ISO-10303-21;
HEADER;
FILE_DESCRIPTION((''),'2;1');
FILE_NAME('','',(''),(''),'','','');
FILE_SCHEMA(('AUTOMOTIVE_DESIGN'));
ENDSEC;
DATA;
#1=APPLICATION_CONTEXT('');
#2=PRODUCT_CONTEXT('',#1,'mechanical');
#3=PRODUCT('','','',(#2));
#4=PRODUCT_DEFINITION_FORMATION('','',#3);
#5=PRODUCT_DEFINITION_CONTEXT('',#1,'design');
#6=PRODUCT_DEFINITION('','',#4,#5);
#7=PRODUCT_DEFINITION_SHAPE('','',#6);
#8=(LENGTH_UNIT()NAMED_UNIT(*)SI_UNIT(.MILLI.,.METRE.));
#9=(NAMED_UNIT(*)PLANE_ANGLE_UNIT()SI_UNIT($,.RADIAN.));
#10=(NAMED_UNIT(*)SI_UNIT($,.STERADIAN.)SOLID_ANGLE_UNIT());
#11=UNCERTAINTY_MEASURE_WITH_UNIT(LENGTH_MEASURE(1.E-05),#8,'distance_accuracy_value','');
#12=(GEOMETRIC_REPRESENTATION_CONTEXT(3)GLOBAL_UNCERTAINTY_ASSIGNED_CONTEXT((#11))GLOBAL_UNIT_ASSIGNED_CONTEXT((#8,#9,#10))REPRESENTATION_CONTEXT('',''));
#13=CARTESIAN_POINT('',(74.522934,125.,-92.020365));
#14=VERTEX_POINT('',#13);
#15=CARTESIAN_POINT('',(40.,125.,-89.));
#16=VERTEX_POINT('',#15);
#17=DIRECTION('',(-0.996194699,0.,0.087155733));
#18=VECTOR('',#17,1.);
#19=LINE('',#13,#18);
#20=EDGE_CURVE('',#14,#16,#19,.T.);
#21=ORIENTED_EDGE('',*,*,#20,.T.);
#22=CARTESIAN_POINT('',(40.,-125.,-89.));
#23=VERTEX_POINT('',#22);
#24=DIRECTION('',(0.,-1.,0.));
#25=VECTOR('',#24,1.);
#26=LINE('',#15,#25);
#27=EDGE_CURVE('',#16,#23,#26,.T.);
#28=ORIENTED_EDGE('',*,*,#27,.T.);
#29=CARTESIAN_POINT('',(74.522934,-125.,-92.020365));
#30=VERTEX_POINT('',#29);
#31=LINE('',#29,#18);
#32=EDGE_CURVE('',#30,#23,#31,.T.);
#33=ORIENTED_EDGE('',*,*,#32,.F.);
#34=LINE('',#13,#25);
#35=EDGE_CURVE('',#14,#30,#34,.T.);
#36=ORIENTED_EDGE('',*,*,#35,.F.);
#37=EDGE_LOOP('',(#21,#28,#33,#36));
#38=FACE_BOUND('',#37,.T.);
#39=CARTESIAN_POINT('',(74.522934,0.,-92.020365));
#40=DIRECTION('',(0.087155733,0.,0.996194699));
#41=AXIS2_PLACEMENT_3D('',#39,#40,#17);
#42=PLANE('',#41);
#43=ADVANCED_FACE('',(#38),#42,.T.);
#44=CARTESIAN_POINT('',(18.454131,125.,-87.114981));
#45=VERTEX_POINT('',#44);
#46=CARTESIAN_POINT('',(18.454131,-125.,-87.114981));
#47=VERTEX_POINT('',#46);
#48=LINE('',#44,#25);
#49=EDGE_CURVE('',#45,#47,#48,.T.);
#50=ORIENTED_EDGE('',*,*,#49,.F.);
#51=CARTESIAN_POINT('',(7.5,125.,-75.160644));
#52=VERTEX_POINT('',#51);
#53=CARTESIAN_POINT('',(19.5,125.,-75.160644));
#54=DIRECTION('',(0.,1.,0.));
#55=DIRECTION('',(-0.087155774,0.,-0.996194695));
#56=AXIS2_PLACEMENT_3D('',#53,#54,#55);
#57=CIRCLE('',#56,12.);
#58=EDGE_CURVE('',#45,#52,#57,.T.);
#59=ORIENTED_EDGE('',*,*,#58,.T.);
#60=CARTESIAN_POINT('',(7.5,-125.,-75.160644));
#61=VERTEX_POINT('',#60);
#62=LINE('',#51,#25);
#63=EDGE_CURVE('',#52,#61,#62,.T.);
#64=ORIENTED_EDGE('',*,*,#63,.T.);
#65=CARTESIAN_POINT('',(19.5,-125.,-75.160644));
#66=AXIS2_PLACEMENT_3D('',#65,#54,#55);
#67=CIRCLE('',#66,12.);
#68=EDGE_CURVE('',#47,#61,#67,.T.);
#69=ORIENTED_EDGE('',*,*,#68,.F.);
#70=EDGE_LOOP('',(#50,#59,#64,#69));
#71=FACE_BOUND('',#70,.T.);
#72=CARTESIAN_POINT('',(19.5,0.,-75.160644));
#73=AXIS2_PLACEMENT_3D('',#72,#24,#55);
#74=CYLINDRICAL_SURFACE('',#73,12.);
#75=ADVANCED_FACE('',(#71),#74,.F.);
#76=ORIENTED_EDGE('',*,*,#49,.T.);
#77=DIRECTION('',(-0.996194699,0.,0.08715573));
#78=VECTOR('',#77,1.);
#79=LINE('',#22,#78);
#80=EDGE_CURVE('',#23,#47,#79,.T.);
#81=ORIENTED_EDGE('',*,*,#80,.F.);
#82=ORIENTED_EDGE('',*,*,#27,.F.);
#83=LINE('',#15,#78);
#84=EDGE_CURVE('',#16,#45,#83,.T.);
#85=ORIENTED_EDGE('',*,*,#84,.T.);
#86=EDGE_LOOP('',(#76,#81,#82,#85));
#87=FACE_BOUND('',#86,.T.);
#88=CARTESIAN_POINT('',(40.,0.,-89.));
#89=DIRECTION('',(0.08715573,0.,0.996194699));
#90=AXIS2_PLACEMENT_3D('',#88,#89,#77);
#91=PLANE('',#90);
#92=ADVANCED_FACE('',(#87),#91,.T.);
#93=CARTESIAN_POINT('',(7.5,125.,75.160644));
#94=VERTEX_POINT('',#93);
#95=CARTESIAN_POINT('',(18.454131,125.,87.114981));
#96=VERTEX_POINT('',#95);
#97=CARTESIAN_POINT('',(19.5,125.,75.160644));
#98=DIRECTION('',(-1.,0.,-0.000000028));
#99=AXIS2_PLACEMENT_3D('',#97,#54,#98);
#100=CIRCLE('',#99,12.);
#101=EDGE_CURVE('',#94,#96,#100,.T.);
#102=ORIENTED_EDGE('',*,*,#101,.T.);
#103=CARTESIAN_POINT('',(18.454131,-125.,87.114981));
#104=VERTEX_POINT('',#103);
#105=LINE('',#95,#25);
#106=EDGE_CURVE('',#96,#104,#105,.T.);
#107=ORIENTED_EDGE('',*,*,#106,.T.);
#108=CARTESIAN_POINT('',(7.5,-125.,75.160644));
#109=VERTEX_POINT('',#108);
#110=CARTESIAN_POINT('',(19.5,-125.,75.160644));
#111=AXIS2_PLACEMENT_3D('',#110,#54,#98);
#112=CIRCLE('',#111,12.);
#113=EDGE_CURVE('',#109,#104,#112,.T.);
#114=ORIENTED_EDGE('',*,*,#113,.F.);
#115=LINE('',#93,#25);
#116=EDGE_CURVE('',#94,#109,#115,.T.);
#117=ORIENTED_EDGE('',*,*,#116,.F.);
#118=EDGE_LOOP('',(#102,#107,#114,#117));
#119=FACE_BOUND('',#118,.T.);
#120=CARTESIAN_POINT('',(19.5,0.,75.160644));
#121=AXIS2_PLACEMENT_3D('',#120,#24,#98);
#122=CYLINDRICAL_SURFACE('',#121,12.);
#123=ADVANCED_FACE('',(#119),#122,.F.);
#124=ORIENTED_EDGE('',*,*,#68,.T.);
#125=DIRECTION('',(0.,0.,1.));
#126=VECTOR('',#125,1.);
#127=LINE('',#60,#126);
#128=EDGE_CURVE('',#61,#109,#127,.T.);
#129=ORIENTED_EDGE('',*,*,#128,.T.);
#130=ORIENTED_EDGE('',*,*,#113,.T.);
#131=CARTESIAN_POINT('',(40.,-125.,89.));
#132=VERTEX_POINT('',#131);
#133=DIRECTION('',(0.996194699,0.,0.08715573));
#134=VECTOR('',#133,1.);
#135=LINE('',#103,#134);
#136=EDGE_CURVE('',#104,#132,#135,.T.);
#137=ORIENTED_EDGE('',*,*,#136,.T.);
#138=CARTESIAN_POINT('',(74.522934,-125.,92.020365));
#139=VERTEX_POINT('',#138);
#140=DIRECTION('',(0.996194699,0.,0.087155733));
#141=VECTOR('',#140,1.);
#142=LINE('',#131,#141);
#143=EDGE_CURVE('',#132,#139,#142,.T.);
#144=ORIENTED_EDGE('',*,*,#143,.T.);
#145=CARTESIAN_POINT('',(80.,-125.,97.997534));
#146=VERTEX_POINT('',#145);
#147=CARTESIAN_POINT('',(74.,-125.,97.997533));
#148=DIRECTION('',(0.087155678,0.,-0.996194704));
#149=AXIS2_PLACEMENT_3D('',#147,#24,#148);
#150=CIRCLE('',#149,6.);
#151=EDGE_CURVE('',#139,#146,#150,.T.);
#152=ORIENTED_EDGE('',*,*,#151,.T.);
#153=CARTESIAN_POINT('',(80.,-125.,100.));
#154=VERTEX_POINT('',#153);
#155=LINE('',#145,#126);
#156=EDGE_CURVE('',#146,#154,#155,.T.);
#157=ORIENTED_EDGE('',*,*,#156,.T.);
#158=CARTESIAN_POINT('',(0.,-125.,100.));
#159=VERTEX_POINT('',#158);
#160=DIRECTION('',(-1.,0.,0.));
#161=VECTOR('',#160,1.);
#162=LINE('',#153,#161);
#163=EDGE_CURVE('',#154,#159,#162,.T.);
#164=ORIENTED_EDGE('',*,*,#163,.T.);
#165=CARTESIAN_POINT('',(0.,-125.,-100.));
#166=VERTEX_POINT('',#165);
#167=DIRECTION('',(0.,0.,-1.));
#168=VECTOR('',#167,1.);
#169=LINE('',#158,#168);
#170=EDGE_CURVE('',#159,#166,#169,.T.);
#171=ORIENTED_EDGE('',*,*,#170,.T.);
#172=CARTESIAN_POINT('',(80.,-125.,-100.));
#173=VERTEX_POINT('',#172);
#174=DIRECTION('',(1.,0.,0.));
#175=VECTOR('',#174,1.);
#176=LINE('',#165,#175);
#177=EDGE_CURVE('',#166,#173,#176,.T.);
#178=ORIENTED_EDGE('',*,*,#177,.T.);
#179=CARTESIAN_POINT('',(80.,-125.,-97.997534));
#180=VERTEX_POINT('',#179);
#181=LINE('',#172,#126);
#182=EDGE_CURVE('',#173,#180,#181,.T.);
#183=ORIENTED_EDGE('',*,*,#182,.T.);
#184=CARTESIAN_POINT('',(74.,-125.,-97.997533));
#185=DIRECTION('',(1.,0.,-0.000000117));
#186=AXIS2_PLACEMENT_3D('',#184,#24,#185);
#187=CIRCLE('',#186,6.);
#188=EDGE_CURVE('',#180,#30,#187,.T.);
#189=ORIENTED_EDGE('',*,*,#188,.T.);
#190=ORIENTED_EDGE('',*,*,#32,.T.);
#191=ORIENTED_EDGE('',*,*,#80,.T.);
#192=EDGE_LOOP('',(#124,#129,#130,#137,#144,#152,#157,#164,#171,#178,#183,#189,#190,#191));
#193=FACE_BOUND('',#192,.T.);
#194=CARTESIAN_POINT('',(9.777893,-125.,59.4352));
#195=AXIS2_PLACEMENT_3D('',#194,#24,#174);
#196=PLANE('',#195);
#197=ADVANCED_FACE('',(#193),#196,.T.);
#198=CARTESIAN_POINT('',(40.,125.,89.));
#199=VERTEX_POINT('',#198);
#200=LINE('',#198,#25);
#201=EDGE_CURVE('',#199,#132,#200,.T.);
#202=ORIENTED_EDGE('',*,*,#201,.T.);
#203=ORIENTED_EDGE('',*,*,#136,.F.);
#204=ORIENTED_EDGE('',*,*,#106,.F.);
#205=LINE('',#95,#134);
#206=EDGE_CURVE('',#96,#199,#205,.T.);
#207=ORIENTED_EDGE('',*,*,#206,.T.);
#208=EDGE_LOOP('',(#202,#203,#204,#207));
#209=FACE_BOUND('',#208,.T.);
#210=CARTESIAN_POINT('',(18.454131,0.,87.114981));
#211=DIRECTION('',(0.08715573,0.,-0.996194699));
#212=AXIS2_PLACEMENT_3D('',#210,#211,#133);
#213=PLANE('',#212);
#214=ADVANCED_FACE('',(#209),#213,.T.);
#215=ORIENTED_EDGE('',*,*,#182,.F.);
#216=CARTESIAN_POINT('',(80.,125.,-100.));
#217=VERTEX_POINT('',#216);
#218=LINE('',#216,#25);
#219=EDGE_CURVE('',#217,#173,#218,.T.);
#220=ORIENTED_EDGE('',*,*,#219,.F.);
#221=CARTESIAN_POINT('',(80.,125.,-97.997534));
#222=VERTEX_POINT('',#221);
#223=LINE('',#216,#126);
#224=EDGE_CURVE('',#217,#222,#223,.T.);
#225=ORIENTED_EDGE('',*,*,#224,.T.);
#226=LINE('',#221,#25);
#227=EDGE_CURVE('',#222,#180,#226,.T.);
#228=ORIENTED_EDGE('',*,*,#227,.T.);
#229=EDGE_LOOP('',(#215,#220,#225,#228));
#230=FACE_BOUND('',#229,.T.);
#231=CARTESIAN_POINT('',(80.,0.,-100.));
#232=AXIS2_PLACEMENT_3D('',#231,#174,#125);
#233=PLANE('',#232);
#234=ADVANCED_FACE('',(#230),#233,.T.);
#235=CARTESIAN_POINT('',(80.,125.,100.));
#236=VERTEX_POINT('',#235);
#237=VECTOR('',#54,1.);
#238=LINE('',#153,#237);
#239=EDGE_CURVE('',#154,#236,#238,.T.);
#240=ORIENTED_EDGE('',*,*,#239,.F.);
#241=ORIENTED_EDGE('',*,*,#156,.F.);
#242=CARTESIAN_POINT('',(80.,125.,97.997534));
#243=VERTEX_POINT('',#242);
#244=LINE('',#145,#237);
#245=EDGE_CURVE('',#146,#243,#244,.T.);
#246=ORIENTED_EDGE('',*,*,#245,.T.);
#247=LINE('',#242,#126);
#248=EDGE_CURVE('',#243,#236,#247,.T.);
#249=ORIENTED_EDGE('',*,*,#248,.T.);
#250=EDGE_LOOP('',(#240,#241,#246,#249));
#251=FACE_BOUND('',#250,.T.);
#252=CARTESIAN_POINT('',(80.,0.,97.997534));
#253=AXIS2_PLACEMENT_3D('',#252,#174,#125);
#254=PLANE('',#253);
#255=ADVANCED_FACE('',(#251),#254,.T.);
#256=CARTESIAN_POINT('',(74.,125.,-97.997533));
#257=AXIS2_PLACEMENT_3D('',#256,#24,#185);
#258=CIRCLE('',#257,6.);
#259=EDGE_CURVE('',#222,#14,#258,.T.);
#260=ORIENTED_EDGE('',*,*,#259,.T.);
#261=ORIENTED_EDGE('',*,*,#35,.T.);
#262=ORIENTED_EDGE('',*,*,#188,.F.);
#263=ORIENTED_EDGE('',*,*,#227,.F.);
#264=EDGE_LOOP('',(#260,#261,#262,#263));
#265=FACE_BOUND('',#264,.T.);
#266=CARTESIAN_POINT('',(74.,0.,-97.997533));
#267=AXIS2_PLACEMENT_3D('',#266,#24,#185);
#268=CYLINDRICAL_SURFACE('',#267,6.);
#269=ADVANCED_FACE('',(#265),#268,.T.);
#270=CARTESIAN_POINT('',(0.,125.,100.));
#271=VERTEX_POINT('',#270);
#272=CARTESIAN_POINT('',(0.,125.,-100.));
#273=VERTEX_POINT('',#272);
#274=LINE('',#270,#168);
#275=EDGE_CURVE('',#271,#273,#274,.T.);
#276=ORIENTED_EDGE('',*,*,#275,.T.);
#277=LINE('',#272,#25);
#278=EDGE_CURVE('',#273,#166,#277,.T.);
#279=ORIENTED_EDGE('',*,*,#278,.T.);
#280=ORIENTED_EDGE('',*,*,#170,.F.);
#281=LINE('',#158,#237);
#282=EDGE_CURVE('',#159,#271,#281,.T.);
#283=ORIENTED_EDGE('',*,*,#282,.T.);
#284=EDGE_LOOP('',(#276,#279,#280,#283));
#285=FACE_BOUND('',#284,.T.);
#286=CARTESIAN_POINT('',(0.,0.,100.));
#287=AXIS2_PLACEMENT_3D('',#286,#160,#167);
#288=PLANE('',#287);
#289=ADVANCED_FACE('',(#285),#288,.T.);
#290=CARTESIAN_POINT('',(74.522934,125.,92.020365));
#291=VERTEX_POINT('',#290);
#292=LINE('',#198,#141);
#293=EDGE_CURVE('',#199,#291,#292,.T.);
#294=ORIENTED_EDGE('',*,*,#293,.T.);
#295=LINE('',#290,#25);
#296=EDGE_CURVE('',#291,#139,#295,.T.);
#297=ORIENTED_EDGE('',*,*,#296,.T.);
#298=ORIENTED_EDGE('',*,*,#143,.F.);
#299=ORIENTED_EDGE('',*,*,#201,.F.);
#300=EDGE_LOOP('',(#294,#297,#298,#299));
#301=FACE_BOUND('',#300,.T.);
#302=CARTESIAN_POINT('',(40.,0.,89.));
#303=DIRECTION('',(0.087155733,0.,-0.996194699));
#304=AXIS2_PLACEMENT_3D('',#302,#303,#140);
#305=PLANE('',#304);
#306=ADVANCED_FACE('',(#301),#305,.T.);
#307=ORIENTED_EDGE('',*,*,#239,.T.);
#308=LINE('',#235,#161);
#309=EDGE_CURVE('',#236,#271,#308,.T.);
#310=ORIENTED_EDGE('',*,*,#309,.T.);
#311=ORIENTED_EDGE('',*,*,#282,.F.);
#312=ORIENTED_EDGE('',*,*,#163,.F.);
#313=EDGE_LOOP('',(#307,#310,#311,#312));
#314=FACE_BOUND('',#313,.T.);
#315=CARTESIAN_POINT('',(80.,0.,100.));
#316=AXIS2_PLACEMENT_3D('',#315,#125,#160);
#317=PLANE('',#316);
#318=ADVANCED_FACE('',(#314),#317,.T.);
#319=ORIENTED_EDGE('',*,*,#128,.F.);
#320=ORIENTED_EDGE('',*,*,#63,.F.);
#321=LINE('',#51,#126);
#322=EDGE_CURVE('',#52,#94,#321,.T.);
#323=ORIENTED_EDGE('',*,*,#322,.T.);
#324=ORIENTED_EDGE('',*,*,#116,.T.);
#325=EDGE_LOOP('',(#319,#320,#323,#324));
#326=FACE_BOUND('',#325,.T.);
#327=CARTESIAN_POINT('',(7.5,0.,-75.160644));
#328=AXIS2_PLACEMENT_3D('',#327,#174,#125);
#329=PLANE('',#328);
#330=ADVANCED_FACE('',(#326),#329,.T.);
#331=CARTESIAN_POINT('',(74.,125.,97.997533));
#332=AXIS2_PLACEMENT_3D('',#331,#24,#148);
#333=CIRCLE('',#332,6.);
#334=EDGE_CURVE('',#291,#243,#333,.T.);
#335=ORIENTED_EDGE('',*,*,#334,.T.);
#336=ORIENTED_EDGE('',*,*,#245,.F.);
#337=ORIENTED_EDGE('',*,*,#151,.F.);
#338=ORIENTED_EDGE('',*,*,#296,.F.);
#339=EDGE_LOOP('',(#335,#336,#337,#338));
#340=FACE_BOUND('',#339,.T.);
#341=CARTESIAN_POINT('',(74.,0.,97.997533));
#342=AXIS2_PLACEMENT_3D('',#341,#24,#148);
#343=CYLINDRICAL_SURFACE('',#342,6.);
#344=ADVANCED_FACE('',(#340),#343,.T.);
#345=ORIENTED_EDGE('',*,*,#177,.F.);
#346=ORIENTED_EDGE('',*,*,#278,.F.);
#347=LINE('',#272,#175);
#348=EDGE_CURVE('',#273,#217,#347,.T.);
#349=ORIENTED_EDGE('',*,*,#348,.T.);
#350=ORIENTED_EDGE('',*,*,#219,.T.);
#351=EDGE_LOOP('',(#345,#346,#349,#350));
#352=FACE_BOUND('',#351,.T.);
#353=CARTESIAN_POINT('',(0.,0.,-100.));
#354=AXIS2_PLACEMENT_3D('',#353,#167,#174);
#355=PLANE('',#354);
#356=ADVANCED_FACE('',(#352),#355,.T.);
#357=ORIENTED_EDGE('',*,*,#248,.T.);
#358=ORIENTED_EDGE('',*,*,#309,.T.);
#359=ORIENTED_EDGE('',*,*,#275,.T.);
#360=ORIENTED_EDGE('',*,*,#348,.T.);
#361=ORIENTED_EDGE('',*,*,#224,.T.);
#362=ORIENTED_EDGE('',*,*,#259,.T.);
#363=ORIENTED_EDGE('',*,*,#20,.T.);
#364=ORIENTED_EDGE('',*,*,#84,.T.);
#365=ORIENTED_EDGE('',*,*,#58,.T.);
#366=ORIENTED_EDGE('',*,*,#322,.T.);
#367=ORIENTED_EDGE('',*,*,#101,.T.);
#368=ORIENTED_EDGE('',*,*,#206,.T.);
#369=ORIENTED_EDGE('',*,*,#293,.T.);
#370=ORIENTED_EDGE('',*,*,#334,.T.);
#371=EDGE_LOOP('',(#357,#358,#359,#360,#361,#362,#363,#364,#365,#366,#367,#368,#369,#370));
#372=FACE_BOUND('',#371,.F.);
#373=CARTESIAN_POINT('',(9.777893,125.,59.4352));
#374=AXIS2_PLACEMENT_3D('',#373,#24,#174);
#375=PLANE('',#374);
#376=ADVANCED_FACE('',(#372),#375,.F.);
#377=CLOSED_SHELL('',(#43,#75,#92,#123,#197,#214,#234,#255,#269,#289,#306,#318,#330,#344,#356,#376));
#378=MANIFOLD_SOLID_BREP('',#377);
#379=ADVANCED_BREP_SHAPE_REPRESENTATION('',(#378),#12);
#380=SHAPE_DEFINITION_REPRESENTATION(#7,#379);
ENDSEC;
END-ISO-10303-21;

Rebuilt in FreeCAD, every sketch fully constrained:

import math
import FreeCAD as App
import Part
import Sketcher

V = App.Vector
Q = App.Units.Quantity

doc = App.newDocument("Part")
body = doc.addObject("PartDesign::Body", "Body")

sketch1 = body.newObject("Sketcher::SketchObject", "Sketch")
sketch1.AttachmentSupport = (doc.getObject("XZ_Plane"), [""])
sketch1.MapMode = "FlatFace"
sketch1.addGeometry([
    Part.LineSegment(V(0, 100, 0), V(0, -100, 0)),
    Part.LineSegment(V(0, -100, 0), V(80, -100, 0)),
    Part.LineSegment(V(80, -100, 0), V(80, -98, 0)),
    Part.ArcOfCircle(Part.Circle(V(74, -98, 0), V(0, 0, 1), 6), math.radians(0), math.radians(85)),
    Part.LineSegment(V(74.5, -92, 0), V(40, -89, 0)),
    Part.LineSegment(V(40, -89, 0), V(18.5, -87.1, 0)),
    Part.ArcOfCircle(Part.Circle(V(19.5, -75.2, 0), V(0, 0, 1), 12), math.radians(180), math.radians(265)),
    Part.LineSegment(V(7.5, -75.2, 0), V(7.5, 75.2, 0)),
    Part.ArcOfCircle(Part.Circle(V(19.5, 75.2, 0), V(0, 0, 1), 12), math.radians(95), math.radians(180)),
    Part.LineSegment(V(18.5, 87.1, 0), V(40, 89, 0)),
    Part.LineSegment(V(40, 89, 0), V(74.5, 92, 0)),
    Part.ArcOfCircle(Part.Circle(V(74, 98, 0), V(0, 0, 1), 6), math.radians(-85), math.radians(0)),
    Part.LineSegment(V(80, 98, 0), V(80, 100, 0)),
    Part.LineSegment(V(80, 100, 0), V(0, 100, 0)),
], False)
sketch1.addConstraint([
    Sketcher.Constraint("Coincident", 0, 2, 1, 1),
    Sketcher.Constraint("Coincident", 1, 2, 2, 1),
    Sketcher.Constraint("Tangent", 2, 2, 3, 1),
    Sketcher.Constraint("Tangent", 3, 2, 4, 1),
    Sketcher.Constraint("Coincident", 4, 2, 5, 1),
    Sketcher.Constraint("Tangent", 5, 2, 6, 2),
    Sketcher.Constraint("Tangent", 6, 1, 7, 1),
    Sketcher.Constraint("Tangent", 7, 2, 8, 2),
    Sketcher.Constraint("Tangent", 8, 1, 9, 1),
    Sketcher.Constraint("Coincident", 9, 2, 10, 1),
    Sketcher.Constraint("Tangent", 10, 2, 11, 1),
    Sketcher.Constraint("Tangent", 11, 2, 12, 1),
    Sketcher.Constraint("Coincident", 12, 2, 13, 1),
    Sketcher.Constraint("Coincident", 13, 2, 0, 1),
    Sketcher.Constraint("Vertical", 0),
    Sketcher.Constraint("Horizontal", 1),
    Sketcher.Constraint("Vertical", 2),
    Sketcher.Constraint("Vertical", 7),
    Sketcher.Constraint("Vertical", 12),
    Sketcher.Constraint("Horizontal", 13),
    Sketcher.Constraint("Equal", 6, 8),
    Sketcher.Constraint("Equal", 3, 11),
    Sketcher.Constraint("Symmetric", 0, 2, 13, 2, -1, 1),
    Sketcher.Constraint("Symmetric", 3, 3, 11, 3, -1),
    Sketcher.Constraint("Symmetric", 5, 2, 8, 1, -1),
    Sketcher.Constraint("Parallel", 4, 5),
    Sketcher.Constraint("Vertical", 4, 2, 9, 2),
    Sketcher.Constraint("Radius", 3, 6.0),
    Sketcher.Constraint("Radius", 6, 12.0),
    Sketcher.Constraint("DistanceX", 1, 1, 1, 2, 80.0),
    Sketcher.Constraint("DistanceY", 0, 2, 0, 1, 200.0),
    Sketcher.Constraint("Angle", 4, Q("175.000001 deg")),
    Sketcher.Constraint("DistanceX", -1, 1, 4, 2, 40.0),
    Sketcher.Constraint("DistanceY", 4, 2, -1, 1, 89.0),
    Sketcher.Constraint("DistanceX", -1, 1, 6, 3, 19.5),
])
pad1 = body.newObject("PartDesign::Pad", "Pad")
pad1.Profile = sketch1
pad1.Length = 250
pad1.Midplane = True

doc.recompute()
